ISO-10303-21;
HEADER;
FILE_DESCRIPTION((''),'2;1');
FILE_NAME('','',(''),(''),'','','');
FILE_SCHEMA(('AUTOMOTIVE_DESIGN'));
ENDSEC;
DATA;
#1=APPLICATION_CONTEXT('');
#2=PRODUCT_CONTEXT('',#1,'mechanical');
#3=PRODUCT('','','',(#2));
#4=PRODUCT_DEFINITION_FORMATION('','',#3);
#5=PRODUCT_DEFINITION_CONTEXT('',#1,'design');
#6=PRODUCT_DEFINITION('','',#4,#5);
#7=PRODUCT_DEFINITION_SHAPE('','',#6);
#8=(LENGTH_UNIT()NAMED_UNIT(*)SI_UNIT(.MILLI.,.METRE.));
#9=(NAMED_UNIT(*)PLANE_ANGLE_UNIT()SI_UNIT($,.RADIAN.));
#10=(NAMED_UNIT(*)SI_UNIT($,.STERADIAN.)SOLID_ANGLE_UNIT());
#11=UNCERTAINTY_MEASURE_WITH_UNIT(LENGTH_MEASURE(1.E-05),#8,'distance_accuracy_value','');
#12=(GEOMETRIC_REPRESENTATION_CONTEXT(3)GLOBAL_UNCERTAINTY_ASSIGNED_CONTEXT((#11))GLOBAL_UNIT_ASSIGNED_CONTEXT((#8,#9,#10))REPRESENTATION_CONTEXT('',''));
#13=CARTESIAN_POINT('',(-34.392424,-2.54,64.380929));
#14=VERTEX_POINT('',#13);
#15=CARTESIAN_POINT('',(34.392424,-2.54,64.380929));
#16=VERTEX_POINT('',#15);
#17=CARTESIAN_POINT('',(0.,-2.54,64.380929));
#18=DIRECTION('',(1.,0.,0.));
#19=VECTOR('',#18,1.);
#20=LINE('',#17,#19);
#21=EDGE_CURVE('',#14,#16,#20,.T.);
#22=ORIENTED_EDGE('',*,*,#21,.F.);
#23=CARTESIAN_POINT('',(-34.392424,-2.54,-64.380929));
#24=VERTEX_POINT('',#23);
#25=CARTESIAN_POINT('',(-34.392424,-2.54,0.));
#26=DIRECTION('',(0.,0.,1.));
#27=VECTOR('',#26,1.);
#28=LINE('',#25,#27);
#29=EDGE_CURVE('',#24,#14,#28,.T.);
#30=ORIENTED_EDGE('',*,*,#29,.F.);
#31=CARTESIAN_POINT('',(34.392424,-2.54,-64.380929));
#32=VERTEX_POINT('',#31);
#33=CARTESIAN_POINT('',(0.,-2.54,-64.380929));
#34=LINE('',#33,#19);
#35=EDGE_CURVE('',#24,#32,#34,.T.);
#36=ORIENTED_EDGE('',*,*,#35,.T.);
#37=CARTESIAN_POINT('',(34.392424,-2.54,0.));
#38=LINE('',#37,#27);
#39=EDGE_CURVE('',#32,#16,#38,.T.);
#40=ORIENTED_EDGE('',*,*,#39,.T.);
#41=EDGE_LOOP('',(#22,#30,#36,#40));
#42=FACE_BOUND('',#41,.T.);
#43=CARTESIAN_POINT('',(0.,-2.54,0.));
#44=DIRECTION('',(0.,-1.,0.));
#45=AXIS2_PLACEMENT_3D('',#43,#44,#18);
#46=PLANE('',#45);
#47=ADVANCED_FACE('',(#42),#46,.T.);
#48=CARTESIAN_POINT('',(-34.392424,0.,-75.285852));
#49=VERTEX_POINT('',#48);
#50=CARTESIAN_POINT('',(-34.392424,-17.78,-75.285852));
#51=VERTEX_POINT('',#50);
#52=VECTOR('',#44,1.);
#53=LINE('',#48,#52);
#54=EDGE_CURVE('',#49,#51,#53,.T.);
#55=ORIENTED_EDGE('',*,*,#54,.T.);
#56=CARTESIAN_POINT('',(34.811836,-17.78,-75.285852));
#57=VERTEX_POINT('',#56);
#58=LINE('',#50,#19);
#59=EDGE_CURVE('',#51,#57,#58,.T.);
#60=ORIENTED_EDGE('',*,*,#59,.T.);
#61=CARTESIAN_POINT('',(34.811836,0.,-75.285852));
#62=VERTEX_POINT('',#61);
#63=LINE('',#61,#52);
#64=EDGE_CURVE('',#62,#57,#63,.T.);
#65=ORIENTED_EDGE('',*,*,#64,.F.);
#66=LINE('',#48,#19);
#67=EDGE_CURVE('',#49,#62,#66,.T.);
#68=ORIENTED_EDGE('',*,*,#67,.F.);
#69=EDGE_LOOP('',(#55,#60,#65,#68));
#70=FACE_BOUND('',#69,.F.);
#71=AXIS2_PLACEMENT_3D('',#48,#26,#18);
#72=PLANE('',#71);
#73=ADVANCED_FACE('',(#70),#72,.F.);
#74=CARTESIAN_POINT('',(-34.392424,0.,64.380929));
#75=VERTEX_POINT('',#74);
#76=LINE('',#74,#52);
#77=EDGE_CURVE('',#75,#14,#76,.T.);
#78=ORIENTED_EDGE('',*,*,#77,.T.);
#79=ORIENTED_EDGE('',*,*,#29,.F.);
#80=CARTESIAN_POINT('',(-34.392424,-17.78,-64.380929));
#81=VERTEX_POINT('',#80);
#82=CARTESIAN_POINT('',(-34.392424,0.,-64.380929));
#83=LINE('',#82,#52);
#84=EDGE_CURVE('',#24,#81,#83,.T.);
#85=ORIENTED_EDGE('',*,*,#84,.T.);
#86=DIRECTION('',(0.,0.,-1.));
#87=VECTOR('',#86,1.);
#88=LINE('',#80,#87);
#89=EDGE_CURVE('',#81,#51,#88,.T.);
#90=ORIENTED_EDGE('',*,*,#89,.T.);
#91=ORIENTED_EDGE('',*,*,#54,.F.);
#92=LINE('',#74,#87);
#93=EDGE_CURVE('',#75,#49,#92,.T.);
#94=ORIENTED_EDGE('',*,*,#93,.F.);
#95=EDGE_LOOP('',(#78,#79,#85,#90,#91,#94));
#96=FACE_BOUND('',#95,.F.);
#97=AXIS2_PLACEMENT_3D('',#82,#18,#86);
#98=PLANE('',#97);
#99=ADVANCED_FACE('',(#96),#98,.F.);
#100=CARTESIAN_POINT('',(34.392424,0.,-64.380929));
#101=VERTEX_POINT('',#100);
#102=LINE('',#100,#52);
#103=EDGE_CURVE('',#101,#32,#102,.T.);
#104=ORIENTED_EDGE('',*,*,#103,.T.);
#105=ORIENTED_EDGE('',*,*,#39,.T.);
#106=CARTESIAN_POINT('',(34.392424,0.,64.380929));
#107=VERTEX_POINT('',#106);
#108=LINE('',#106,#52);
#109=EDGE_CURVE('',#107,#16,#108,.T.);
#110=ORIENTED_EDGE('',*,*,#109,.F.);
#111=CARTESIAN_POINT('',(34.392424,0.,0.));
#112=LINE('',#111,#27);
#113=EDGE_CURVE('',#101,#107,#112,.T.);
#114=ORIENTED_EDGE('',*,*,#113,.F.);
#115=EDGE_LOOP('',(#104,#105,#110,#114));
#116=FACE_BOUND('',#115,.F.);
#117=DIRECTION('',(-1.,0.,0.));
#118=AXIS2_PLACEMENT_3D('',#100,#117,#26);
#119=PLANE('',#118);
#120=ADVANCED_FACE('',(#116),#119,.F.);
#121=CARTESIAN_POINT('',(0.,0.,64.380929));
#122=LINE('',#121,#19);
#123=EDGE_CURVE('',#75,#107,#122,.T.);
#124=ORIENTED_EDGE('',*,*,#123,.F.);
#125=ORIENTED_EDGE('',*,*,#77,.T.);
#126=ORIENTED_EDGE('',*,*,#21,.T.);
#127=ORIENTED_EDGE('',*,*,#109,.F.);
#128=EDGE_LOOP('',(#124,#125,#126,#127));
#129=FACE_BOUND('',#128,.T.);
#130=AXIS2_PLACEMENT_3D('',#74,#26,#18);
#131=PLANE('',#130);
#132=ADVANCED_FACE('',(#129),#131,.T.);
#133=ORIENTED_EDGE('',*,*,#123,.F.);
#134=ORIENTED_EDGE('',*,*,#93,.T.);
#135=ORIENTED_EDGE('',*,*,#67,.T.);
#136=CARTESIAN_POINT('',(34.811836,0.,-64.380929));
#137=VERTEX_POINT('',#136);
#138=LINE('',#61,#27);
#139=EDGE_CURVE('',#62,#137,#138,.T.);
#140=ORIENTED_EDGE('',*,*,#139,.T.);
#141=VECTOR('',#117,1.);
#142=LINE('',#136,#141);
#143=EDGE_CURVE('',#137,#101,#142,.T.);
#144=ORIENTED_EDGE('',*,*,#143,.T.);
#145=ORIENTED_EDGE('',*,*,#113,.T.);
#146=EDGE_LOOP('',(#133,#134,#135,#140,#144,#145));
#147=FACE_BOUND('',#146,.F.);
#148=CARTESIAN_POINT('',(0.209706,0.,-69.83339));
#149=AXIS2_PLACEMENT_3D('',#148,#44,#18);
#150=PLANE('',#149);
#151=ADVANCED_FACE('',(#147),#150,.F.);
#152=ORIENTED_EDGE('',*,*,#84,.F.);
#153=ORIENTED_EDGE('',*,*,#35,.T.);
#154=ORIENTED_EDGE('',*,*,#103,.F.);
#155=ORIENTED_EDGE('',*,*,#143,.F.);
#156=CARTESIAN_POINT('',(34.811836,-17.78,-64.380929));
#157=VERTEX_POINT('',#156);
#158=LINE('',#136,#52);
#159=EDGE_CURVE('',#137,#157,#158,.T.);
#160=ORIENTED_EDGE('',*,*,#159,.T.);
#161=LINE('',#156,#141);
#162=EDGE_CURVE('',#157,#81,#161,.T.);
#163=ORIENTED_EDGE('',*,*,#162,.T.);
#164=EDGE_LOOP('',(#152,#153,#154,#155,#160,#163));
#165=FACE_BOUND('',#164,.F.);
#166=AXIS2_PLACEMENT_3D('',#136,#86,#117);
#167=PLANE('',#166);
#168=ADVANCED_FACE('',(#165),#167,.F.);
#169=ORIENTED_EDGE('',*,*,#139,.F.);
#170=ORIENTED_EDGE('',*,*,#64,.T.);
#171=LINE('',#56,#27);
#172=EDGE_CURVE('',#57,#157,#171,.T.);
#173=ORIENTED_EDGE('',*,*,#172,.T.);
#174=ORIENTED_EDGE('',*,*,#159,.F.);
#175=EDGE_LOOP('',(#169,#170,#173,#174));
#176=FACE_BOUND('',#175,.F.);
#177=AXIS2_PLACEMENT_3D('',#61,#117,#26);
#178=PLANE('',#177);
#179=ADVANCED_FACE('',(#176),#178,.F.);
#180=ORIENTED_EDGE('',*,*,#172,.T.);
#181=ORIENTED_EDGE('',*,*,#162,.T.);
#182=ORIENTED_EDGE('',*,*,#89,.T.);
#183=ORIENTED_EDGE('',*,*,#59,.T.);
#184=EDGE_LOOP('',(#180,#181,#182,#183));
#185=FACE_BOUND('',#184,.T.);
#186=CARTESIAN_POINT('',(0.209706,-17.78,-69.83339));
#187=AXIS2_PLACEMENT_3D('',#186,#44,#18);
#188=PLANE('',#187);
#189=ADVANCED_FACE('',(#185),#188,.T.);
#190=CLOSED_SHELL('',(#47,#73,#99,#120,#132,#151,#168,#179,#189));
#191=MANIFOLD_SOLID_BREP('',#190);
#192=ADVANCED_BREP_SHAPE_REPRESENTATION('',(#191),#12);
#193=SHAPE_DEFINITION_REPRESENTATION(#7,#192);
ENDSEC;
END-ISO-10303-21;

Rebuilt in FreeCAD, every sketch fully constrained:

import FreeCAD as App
import Part
import Sketcher
from FreeCAD import Vector


def add_polygon(sketch, points):
    """Adds a closed chain of lines whose ends are joined by coincident constraints."""
    first, n = sketch.GeometryCount, len(points)
    for a, b in zip(points, points[1:] + points[:1]):
        sketch.addGeometry(Part.LineSegment(App.Vector(*a, 0), App.Vector(*b, 0)), False)
    for i in range(n):
        sketch.addConstraint(Sketcher.Constraint("Coincident", first + i, 2, first + (i + 1) % n, 1))

doc = App.newDocument("Part")
params = doc.addObject("Spreadsheet::Sheet", "Params")
for row, (alias, value) in enumerate([
    ("pad1_length", "0.1 in"),
    ("pad2_length", "0.7 in"),
], start=1):
    params.set(f"A{row}", alias)
    params.set(f"B{row}", "=" + value)
    params.setAlias(f"B{row}", alias)

body = doc.addObject("PartDesign::Body", "Body")

sketch1 = doc.addObject("Sketcher::SketchObject", "Sketch")
body.addObject(sketch1)
sketch1.AttachmentSupport = (doc.XZ_Plane, [""])
sketch1.MapMode = "FlatFace"
add_polygon(sketch1, [(-34.392424, 64.380929), (-34.392424, -64.380929), (34.392424, -64.380929), (34.392424, 64.380929)])
sketch1.addConstraint(Sketcher.Constraint("Vertical", 0))
sketch1.addConstraint(Sketcher.Constraint("Horizontal", 1))
sketch1.addConstraint(Sketcher.Constraint("Vertical", 2))
sketch1.addConstraint(Sketcher.Constraint("Horizontal", 3))
sketch1.addConstraint(Sketcher.Constraint("Symmetric", 0, 2, 2, 2, -1, 1))
sketch1.addConstraint(Sketcher.Constraint("DistanceX", 1, 1, 1, 2, 68.784848))
sketch1.addConstraint(Sketcher.Constraint("DistanceY", 0, 2, 0, 1, 128.761858))
pad1 = doc.addObject("PartDesign::Pad", "Pad")
body.addObject(pad1)
pad1.Profile = sketch1
pad1.setExpression("Length", "Params.pad1_length")

sketch2 = doc.addObject("Sketcher::SketchObject", "Sketch001")
body.addObject(sketch2)
sketch2.AttachmentSupport = (doc.XZ_Plane, [""])
sketch2.MapMode = "FlatFace"
add_polygon(sketch2, [(-34.392424, -64.380929), (-34.392424, -75.285852), (34.811836, -75.285852), (34.811836, -64.380929)])
sketch2.addConstraint(Sketcher.Constraint("Vertical", 0))
sketch2.addConstraint(Sketcher.Constraint("Horizontal", 1))
sketch2.addConstraint(Sketcher.Constraint("Vertical", 2))
sketch2.addConstraint(Sketcher.Constraint("Horizontal", 3))
sketch2.addConstraint(Sketcher.Constraint("DistanceX", 1, 1, 1, 2, 69.20426))
sketch2.addConstraint(Sketcher.Constraint("DistanceY", 0, 2, 0, 1, 10.904923))
sketch2.addConstraint(Sketcher.Constraint("DistanceY", 2, 2, -1, 1, 64.380929))
sketch2.addConstraint(Sketcher.Constraint("DistanceX", 0, 2, -1, 1, 34.392424))
pad2 = doc.addObject("PartDesign::Pad", "Pad001")
body.addObject(pad2)
pad2.Profile = sketch2
pad2.setExpression("Length", "Params.pad2_length")

doc.recompute()
